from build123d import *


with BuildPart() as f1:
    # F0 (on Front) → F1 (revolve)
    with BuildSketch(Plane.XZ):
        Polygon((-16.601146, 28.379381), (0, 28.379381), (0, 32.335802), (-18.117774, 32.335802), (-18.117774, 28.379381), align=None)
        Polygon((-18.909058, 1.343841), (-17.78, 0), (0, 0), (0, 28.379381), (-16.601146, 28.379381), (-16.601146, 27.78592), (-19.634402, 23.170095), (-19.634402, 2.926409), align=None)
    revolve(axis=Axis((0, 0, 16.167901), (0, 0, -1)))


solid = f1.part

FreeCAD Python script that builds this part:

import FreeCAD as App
import Part
import Sketcher
from FreeCAD import Vector
Q = App.Units.Quantity


def add_polygon(sketch, points):
    """Adds a closed chain of lines whose ends are joined by coincident constraints."""
    first, n = sketch.GeometryCount, len(points)
    for a, b in zip(points, points[1:] + points[:1]):
        sketch.addGeometry(Part.LineSegment(App.Vector(*a, 0), App.Vector(*b, 0)), False)
    for i in range(n):
        sketch.addConstraint(Sketcher.Constraint("Coincident", first + i, 2, first + (i + 1) % n, 1))

doc = App.newDocument("Part")
body = doc.addObject("PartDesign::Body", "Body")

# Sketch on XZ plane
sketch1 = body.newObject("Sketcher::SketchObject", "Sketch")
sketch1.AttachmentSupport = (doc.getObject("XZ_Plane"), [""])
sketch1.MapMode = "FlatFace"
add_polygon(sketch1, [(0, 32.3), (-18.1, 32.3), (-18.1, 28.4), (-16.6, 28.4), (-16.6, 27.8), (-19.6, 23.2), (-19.6, 2.9), (-18.9, 1.3), (-17.8, 0), (0, 0)])  # lines 0-9
sketch1.addConstraint([
    Sketcher.Constraint("Horizontal", 0),
    Sketcher.Constraint("Vertical", 1),
    Sketcher.Constraint("Horizontal", 2),
    Sketcher.Constraint("Vertical", 3),
    Sketcher.Constraint("Vertical", 5),
    Sketcher.Constraint("Horizontal", 8),
    Sketcher.Constraint("Vertical", 9),
    Sketcher.Constraint("Coincident", 8, 2, -1, 1),
    Sketcher.Constraint("DistanceX", 8, 1, 8, 2, Q("0.7 in")),
    Sketcher.Constraint("DistanceX", 2, 1, 2, 2, Q("1.516628 mm")),
    Sketcher.Constraint("DistanceY", 1, 2, 1, 1, Q("3.956421 mm")),
    Sketcher.Constraint("DistanceY", 3, 2, 3, 1, Q("0.593461 mm")),
    Sketcher.Constraint("DistanceX", 0, 2, 0, 1, Q("18.117774 mm")),
    Sketcher.Constraint("DistanceY", 5, 2, 5, 1, Q("20.243686 mm")),
    Sketcher.Constraint("DistanceY", 9, 1, 9, 2, Q("32.335802 mm")),
    Sketcher.Constraint("DistanceY", -1, 1, 5, 2, Q("2.926409 mm")),
    Sketcher.Constraint("DistanceX", 6, 2, -1, 1, Q("18.909058 mm")),
    Sketcher.Constraint("DistanceY", -1, 1, 6, 2, Q("1.343841 mm")),
    Sketcher.Constraint("DistanceX", 4, 2, 1, 2, Q("1.516628 mm")),
])
revolution = body.newObject("PartDesign::Revolution", "Revolution")
revolution.Profile = sketch1
revolution.ReferenceAxis = (sketch1, ["V_Axis"])
revolution.Angle = 360

doc.recompute()
